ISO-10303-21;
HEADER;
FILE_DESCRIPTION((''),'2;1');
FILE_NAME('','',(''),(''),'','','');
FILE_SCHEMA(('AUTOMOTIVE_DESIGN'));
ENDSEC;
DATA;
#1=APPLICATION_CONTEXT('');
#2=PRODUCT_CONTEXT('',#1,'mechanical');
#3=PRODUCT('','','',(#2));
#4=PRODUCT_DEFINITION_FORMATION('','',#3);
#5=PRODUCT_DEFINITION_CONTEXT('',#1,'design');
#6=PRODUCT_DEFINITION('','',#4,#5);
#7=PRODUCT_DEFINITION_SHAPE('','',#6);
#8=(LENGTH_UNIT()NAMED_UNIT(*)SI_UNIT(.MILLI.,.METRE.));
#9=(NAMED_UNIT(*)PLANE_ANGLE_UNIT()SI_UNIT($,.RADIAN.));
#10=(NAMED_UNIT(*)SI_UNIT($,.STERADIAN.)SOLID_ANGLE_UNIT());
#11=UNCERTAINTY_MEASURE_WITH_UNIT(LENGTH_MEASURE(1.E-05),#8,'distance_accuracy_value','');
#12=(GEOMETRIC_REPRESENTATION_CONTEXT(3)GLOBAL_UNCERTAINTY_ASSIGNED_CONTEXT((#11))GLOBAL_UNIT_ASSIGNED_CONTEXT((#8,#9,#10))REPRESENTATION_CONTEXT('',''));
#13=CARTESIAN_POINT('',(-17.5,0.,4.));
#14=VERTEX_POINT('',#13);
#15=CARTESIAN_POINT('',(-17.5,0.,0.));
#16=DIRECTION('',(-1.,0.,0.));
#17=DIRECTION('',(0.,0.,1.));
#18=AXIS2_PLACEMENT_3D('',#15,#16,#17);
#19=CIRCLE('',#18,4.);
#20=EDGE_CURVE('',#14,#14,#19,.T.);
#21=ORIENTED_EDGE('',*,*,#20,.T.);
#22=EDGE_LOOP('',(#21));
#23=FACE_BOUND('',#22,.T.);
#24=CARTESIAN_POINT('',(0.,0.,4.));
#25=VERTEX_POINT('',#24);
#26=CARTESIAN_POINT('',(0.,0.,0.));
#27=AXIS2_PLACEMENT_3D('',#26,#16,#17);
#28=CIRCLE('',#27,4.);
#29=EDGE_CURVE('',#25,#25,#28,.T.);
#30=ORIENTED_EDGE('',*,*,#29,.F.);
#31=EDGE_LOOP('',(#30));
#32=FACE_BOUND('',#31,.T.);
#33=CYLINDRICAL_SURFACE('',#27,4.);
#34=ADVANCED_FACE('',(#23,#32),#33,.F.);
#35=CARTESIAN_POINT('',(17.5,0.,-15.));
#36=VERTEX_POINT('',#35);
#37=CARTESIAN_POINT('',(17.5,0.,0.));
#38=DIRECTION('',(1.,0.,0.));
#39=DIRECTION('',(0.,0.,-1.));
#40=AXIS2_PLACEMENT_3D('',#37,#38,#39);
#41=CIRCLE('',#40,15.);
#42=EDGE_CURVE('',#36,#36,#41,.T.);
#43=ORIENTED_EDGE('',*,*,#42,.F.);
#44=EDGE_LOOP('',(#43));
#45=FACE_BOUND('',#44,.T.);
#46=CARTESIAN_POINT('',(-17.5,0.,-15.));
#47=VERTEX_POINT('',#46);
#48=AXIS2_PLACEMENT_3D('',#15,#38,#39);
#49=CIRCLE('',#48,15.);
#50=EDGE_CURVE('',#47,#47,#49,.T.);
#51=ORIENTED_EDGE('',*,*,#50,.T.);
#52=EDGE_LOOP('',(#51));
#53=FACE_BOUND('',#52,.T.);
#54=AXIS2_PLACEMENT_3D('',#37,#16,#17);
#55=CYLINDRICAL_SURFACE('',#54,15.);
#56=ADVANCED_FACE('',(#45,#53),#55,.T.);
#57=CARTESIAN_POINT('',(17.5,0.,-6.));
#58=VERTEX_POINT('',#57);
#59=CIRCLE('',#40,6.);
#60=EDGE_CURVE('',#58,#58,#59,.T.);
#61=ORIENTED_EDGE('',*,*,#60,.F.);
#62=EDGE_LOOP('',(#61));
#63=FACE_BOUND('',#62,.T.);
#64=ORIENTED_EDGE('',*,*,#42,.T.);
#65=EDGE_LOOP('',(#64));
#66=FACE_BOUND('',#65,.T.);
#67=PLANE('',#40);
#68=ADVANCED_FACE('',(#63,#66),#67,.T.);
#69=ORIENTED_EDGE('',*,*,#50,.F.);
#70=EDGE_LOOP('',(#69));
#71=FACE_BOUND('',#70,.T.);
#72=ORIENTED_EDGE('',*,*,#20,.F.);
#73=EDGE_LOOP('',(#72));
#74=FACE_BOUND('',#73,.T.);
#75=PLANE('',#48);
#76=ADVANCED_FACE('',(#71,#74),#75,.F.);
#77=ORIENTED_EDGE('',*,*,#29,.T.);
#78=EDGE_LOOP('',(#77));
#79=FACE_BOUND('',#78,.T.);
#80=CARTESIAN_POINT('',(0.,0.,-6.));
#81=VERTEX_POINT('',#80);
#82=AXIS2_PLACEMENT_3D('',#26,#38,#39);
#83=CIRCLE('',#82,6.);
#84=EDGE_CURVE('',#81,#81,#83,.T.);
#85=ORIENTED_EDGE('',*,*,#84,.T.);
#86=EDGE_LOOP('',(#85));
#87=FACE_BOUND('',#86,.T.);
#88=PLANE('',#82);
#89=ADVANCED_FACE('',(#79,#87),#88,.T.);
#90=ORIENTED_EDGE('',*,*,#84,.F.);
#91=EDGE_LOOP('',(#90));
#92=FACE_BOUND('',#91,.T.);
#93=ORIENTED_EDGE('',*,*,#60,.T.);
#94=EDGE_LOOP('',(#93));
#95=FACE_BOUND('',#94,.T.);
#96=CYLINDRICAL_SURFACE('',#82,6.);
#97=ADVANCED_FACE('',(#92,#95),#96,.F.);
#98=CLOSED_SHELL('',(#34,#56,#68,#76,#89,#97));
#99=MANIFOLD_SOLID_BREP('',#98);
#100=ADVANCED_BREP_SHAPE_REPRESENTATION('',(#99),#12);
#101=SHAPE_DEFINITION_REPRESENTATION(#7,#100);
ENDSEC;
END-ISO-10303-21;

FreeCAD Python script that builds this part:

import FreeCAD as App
import Part
import Sketcher
from FreeCAD import Vector
Q = App.Units.Quantity

doc = App.newDocument("Part")
body = doc.addObject("PartDesign::Body", "Body")

sketch1 = body.newObject("Sketcher::SketchObject", "Sketch")
sketch1.AttachmentSupport = (doc.getObject("YZ_Plane"), [""])
sketch1.MapMode = "FlatFace"
sketch1.addGeometry(Part.Circle(Vector(0, 0, 0), Vector(0, 0, 1), 15), False)
sketch1.addConstraint([
    Sketcher.Constraint("Coincident", 0, 3, -1, 1),
    Sketcher.Constraint("Diameter", 0, Q("30 mm")),
])
pad1 = body.newObject("PartDesign::Pad", "Pad")
pad1.Profile = sketch1
pad1.Length = 35
pad1.Midplane = True

sketch2 = body.newObject("Sketcher::SketchObject", "Sketch001")
sketch2.AttachmentSupport = (doc.getObject("YZ_Plane"), [""])
sketch2.MapMode = "FlatFace"
sketch2.AttachmentOffset = App.Placement(Vector(0, 0, 17.5), App.Rotation())
sketch2.addGeometry(Part.Circle(Vector(0, 0, 0), Vector(0, 0, 1), 6), False)
sketch2.addConstraint([
    Sketcher.Constraint("Coincident", 0, 3, -1, 1),
    Sketcher.Constraint("Diameter", 0, Q("12 mm")),
])
pocket1 = body.newObject("PartDesign::Pocket", "Pocket")
pocket1.Profile = sketch2
pocket1.Length = 17.5

sketch3 = body.newObject("Sketcher::SketchObject", "Sketch002")
sketch3.AttachmentSupport = (doc.getObject("YZ_Plane"), [""])
sketch3.MapMode = "FlatFace"
sketch3.AttachmentOffset = App.Placement(Vector(0, 0, -17.5), App.Rotation())
sketch3.addGeometry(Part.Circle(Vector(0, 0, 0), Vector(0, 0, 1), 4), False)
sketch3.addConstraint([
    Sketcher.Constraint("Coincident", 0, 3, -1, 1),
    Sketcher.Constraint("Diameter", 0, Q("8 mm")),
])
pocket2 = body.newObject("PartDesign::Pocket", "Pocket001")
pocket2.Profile = sketch3
pocket2.Length = 17.5
pocket2.Reversed = True

doc.recompute()
